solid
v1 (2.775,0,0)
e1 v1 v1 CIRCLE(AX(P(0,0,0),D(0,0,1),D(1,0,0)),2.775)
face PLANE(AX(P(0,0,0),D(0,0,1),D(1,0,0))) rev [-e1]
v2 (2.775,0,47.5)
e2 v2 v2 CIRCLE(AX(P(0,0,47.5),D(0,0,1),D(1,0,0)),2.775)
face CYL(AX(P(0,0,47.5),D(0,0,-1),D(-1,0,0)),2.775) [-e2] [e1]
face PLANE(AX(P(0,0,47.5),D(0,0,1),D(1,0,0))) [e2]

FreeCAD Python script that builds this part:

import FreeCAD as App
import Part
import Sketcher
from FreeCAD import Vector
Q = App.Units.Quantity

doc = App.newDocument("Part")
params = doc.addObject("Spreadsheet::Sheet", "Params")
for row, (alias, value) in enumerate([
    ("sketch1_diameter", "5.55 mm"),
    ("pad1_length", "47.5 mm"),
], start=1):
    params.set(f"A{row}", alias)
    params.set(f"B{row}", "=" + value)
    params.setAlias(f"B{row}", alias)

body = doc.addObject("PartDesign::Body", "Body")

sketch1 = doc.addObject("Sketcher::SketchObject", "Sketch")
body.addObject(sketch1)
sketch1.AttachmentSupport = (doc.XY_Plane, [""])
sketch1.MapMode = "FlatFace"
sketch1.addGeometry(Part.Circle(Vector(0, 0, 0), Vector(0, 0, 1), 2.8), False)
sketch1.addConstraint(Sketcher.Constraint("Coincident", 0, 3, -1, 1))
sketch1.addConstraint(Sketcher.Constraint("Diameter", 0, Q("5.55 mm")))
sketch1.setExpression("Constraints[1]", "Params.sketch1_diameter")
pad1 = doc.addObject("PartDesign::Pad", "Pad")
body.addObject(pad1)
pad1.Profile = sketch1
pad1.setExpression("Length", "Params.pad1_length")

doc.recompute()
